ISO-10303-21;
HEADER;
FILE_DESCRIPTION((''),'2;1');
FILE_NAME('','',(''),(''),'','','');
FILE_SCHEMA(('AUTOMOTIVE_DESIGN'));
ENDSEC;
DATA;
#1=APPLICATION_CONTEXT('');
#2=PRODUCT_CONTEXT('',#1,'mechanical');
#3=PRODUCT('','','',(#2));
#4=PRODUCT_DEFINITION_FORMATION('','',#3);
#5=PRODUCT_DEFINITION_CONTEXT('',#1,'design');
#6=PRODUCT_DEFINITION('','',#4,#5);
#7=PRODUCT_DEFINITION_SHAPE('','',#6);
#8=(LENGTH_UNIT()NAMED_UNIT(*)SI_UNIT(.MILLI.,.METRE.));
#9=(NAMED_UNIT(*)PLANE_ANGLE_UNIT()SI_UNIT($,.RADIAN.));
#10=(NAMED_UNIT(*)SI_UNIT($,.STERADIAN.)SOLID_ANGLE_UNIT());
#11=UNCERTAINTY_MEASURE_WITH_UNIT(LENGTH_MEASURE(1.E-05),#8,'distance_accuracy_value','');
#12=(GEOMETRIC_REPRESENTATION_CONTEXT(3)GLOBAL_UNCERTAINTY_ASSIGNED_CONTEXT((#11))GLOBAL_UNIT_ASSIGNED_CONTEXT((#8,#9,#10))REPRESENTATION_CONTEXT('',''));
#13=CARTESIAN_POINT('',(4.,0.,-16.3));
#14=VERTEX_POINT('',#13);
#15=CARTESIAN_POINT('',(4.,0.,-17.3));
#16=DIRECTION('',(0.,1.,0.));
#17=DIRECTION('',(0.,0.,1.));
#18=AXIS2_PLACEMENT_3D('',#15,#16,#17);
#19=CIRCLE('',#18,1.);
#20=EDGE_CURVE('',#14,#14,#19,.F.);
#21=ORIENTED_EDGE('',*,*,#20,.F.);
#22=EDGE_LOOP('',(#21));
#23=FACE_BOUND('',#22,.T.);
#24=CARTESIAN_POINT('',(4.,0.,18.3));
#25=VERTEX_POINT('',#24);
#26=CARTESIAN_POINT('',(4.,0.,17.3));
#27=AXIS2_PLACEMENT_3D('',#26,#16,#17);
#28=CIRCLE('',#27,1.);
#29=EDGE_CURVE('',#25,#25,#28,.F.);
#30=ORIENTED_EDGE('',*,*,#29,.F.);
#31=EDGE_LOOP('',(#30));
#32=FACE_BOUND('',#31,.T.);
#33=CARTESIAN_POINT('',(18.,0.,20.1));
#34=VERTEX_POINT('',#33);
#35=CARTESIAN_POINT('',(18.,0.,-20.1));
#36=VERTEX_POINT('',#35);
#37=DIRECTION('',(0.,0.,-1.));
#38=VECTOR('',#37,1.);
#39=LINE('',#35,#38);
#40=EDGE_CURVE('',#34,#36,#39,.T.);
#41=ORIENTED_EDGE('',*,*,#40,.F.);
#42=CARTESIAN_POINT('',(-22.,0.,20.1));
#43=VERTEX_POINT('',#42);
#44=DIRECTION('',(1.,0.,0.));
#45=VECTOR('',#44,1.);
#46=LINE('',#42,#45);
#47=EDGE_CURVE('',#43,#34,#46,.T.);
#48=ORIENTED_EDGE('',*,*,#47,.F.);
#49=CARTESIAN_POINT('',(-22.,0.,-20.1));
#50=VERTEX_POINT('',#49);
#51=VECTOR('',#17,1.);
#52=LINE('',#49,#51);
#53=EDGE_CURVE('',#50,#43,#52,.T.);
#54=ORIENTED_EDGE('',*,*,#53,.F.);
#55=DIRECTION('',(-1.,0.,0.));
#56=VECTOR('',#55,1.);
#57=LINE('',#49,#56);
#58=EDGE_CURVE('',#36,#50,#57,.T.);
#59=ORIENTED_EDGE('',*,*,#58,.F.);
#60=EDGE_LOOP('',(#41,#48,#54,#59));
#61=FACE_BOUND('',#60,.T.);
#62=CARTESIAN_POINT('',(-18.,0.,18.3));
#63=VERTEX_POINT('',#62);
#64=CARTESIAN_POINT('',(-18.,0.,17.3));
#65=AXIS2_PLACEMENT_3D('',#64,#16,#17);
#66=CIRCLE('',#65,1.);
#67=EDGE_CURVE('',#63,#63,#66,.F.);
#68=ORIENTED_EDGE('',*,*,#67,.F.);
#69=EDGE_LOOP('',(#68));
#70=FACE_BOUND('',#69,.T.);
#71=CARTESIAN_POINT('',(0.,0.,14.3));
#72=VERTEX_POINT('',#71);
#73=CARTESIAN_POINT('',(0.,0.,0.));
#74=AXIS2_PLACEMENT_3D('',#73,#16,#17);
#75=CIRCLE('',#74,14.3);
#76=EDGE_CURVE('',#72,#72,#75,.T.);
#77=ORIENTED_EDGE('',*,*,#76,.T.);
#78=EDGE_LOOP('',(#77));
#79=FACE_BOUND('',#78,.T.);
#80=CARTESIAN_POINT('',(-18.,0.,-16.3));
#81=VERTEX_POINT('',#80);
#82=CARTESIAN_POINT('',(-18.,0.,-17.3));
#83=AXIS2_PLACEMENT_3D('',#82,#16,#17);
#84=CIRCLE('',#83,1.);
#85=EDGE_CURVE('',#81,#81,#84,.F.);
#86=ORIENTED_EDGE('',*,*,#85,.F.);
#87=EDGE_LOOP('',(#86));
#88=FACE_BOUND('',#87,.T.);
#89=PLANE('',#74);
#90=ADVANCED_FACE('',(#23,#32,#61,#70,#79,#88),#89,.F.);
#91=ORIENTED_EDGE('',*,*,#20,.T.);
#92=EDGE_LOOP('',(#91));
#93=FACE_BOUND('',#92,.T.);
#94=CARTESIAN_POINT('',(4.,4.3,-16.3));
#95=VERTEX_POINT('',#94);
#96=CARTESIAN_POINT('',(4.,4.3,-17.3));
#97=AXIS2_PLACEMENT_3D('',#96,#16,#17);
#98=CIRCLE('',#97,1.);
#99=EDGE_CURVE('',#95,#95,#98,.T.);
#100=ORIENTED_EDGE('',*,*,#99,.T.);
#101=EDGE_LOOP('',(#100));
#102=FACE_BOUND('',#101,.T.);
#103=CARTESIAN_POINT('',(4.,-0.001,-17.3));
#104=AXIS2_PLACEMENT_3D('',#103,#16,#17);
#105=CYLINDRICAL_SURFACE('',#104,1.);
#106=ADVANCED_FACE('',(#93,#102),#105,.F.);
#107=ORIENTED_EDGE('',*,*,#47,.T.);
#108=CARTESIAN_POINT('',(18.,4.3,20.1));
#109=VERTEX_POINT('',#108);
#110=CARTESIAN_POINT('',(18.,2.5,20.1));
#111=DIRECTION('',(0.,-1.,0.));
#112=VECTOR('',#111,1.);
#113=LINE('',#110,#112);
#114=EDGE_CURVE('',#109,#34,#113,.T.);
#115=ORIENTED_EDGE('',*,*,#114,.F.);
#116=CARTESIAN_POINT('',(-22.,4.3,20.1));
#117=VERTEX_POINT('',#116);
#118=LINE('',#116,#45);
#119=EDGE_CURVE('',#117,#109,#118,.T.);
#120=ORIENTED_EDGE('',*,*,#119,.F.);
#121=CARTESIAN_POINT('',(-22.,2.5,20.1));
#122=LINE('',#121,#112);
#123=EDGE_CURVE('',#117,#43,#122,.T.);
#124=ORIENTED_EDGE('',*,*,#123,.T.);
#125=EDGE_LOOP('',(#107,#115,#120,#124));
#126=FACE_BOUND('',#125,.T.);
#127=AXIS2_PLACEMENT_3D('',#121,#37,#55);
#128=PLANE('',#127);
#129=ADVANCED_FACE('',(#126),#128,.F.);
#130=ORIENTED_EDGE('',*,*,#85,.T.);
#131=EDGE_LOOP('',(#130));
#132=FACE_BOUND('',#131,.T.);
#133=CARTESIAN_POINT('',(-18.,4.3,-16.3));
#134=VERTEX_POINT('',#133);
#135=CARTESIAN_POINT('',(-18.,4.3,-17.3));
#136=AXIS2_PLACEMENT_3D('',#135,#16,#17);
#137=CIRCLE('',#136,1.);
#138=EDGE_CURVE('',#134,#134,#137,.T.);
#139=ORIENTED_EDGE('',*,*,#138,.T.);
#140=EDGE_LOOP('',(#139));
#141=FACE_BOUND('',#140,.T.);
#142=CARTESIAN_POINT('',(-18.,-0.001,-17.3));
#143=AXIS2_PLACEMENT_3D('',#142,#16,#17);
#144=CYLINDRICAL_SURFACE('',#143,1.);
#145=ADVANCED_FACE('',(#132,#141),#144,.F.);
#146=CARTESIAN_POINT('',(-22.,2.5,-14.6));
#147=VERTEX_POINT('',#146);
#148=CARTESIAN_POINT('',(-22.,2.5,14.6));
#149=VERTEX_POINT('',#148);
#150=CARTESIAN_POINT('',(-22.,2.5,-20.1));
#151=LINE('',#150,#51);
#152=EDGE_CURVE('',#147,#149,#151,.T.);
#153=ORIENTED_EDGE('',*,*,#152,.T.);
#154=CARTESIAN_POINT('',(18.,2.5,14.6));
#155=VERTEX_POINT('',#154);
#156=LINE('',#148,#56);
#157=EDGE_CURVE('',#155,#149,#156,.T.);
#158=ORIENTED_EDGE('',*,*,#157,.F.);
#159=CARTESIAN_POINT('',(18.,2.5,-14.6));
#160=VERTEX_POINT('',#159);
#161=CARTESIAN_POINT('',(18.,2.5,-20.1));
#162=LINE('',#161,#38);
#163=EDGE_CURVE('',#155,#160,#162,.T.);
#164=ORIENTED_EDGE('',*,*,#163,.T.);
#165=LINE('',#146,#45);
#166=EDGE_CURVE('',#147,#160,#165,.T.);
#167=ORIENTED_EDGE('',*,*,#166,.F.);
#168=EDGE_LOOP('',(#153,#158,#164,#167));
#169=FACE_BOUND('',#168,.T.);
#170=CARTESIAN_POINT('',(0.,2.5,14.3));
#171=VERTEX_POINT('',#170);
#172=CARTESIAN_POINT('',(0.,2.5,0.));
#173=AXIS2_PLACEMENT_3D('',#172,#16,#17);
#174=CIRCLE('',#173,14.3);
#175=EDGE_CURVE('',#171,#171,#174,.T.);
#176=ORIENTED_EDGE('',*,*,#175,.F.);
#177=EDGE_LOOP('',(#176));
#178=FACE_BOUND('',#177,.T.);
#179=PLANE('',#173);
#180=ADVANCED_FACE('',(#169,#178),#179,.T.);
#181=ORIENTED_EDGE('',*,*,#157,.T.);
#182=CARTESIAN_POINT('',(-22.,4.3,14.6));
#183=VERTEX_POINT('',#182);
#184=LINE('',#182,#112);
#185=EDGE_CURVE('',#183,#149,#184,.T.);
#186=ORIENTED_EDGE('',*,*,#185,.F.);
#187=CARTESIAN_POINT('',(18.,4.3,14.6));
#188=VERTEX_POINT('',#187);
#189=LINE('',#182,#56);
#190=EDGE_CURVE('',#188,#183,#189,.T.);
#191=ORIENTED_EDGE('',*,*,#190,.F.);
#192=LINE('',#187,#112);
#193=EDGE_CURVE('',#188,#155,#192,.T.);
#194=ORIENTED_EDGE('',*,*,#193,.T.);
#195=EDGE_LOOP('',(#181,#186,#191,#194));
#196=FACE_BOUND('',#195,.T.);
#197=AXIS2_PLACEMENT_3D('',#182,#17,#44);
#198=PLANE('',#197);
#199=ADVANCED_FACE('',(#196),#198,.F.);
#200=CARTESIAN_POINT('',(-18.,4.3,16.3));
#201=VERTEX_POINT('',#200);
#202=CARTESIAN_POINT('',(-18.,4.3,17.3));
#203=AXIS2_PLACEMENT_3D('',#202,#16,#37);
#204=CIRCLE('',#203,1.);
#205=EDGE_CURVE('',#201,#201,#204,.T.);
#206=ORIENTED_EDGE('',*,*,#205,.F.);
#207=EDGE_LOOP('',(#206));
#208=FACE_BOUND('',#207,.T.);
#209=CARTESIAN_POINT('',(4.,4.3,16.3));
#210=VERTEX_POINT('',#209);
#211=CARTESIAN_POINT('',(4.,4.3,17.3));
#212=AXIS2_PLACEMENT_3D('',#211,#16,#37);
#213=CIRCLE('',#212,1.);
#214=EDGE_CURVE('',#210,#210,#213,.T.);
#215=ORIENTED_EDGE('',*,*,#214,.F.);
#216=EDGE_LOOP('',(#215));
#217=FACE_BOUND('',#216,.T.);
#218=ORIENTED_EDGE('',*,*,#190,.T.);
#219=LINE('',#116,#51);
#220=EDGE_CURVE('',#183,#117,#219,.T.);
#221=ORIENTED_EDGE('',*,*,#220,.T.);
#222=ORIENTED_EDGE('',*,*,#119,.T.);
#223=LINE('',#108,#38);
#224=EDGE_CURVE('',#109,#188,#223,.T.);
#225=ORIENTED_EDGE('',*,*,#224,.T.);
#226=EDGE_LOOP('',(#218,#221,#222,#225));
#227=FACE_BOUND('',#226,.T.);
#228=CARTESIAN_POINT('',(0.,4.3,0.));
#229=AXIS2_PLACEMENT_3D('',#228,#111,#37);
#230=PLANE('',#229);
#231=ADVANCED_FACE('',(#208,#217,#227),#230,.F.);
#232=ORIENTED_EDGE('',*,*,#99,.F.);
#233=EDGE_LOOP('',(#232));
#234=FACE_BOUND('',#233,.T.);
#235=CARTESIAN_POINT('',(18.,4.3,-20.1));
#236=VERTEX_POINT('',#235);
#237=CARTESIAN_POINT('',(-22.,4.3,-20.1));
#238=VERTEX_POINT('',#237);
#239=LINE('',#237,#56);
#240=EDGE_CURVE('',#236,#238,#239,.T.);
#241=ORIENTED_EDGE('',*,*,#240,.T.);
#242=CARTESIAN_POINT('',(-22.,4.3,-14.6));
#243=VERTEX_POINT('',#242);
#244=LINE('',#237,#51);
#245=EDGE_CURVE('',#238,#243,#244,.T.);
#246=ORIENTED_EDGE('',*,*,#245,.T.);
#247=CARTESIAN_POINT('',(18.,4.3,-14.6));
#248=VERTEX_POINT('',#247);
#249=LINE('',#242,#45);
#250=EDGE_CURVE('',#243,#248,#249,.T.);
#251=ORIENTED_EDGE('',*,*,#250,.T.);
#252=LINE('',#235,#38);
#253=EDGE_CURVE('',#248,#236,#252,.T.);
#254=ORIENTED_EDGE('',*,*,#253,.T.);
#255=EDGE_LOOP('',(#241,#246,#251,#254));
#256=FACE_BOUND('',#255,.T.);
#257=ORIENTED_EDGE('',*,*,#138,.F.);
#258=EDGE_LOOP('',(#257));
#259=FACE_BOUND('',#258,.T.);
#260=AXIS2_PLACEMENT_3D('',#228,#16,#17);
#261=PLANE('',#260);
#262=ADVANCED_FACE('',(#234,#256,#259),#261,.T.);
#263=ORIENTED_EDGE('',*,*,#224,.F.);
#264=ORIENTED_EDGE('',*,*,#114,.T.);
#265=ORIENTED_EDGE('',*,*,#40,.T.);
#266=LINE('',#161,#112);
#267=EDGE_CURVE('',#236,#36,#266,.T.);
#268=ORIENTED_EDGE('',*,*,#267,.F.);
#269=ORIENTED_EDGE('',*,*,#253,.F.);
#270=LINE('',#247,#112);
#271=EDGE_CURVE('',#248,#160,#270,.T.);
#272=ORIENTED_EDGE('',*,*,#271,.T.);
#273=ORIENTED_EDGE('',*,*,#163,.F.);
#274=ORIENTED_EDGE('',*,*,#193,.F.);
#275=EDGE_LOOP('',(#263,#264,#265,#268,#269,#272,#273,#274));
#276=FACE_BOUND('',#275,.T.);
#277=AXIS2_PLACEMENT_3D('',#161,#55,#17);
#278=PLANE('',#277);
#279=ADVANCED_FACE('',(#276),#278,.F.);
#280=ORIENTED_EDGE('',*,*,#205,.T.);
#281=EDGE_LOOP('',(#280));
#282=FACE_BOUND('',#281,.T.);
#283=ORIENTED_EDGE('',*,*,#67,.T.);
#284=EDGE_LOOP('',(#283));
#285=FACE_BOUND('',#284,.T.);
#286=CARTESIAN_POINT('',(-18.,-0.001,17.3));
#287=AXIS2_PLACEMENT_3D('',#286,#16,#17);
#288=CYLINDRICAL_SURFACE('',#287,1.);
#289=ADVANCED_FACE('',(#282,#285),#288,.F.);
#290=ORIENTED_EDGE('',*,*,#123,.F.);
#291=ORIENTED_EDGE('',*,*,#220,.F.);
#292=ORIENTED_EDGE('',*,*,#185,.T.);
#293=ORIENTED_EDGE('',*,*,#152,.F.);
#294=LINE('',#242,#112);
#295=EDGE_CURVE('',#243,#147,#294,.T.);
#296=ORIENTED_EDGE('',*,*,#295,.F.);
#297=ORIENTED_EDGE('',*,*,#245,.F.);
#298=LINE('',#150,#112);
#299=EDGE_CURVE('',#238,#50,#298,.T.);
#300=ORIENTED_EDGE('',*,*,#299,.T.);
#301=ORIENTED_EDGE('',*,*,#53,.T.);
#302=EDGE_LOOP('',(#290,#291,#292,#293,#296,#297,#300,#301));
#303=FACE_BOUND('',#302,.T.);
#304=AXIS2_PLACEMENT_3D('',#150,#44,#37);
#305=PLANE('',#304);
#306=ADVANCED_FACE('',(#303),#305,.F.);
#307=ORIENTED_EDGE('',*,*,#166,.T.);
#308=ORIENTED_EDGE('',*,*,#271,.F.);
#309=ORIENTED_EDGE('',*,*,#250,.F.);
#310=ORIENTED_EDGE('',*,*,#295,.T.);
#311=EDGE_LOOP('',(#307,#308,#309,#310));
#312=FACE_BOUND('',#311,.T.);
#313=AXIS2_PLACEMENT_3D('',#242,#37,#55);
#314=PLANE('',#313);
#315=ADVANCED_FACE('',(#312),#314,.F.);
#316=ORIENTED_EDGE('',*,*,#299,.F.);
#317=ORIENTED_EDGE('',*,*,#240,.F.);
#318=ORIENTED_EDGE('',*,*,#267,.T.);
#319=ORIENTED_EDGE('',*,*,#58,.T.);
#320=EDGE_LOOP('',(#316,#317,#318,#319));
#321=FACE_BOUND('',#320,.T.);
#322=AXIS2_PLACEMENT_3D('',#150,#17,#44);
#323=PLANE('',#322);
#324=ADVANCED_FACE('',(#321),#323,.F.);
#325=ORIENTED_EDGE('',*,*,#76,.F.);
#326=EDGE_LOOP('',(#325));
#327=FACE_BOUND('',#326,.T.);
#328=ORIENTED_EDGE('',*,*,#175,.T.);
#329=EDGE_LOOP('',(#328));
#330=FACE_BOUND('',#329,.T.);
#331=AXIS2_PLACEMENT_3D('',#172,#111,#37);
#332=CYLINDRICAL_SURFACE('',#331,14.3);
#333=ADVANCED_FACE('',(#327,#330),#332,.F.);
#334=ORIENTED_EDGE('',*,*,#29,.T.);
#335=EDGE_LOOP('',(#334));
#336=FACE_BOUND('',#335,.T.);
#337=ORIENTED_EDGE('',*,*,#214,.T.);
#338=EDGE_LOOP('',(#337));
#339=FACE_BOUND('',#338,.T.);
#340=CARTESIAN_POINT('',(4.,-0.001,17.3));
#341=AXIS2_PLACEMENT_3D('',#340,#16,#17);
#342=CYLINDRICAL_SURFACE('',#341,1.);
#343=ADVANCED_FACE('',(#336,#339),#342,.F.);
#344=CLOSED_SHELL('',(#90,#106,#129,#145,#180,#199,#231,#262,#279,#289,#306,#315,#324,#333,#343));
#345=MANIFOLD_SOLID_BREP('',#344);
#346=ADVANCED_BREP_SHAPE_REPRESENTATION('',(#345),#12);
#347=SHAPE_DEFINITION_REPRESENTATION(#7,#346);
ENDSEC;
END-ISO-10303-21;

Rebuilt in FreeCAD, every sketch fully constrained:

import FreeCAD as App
import Part
import Sketcher

V = App.Vector


def add_polygon(sketch, points):
    """Adds a closed chain of lines whose ends are joined by coincident constraints."""
    first, n = sketch.GeometryCount, len(points)
    for a, b in zip(points, points[1:] + points[:1]):
        sketch.addGeometry(Part.LineSegment(App.Vector(*a, 0), App.Vector(*b, 0)), False)
    for i in range(n):
        sketch.addConstraint(Sketcher.Constraint("Coincident", first + i, 2, first + (i + 1) % n, 1))

doc = App.newDocument("Part")
body = doc.addObject("PartDesign::Body", "Body")

# Sketch on XZ plane
sketch1 = body.newObject("Sketcher::SketchObject", "Sketch")
sketch1.AttachmentSupport = (doc.getObject("XZ_Plane"), [""])
sketch1.MapMode = "FlatFace"
add_polygon(sketch1, [(-22, -20), (-22, 20), (18, 20), (18, -20)])  # lines 0-3
sketch1.addGeometry(Part.Circle(V(0, 0, 0), V(0, 0, 1), 14), False)  # 4
sketch1.addConstraint([
    Sketcher.Constraint("Vertical", 0),
    Sketcher.Constraint("Horizontal", 1),
    Sketcher.Constraint("Vertical", 2),
    Sketcher.Constraint("Horizontal", 3),
    Sketcher.Constraint("Coincident", 4, 3, -1, 1),
    Sketcher.Constraint("Diameter", 4, 28.6),
    Sketcher.Constraint("DistanceX", 1, 1, 1, 2, 40.0),
    Sketcher.Constraint("DistanceY", 0, 1, 0, 2, 40.2),
    Sketcher.Constraint("DistanceX", 0, 2, -1, 1, 22.0),
    Sketcher.Constraint("DistanceY", -1, 1, 0, 2, 20.1),
])
pad1 = body.newObject("PartDesign::Pad", "Pad")
pad1.Profile = sketch1
pad1.Length = 2.5
pad1.Reversed = True

# Sketch on XZ plane
sketch2 = body.newObject("Sketcher::SketchObject", "Sketch001")
sketch2.AttachmentSupport = (doc.getObject("XZ_Plane"), [""])
sketch2.MapMode = "FlatFace"
sketch2.AttachmentOffset = App.Placement(V(0, 0, -2.5), App.Rotation())
add_polygon(sketch2, [(-22, -20), (-22, -15), (18, -15), (18, -20)])  # lines 0-3
add_polygon(sketch2, [(-22, 15), (-22, 20), (18, 20), (18, 15)])  # lines 4-7
sketch2.addConstraint([
    Sketcher.Constraint("Vertical", 0),
    Sketcher.Constraint("Horizontal", 1),
    Sketcher.Constraint("Vertical", 2),
    Sketcher.Constraint("Horizontal", 3),
    Sketcher.Constraint("Vertical", 4),
    Sketcher.Constraint("Horizontal", 5),
    Sketcher.Constraint("Vertical", 6),
    Sketcher.Constraint("Horizontal", 7),
    Sketcher.Constraint("Symmetric", 3, 2, 4, 2, -1),
    Sketcher.Constraint("Symmetric", 1, 2, 6, 2, -1),
    Sketcher.Constraint("DistanceX", 1, 1, 1, 2, 40.0),
    Sketcher.Constraint("DistanceY", 0, 1, 0, 2, 5.5),
    Sketcher.Constraint("DistanceX", 0, 2, -1, 1, 22.0),
    Sketcher.Constraint("DistanceY", 0, 2, -1, 1, 14.6),
])
pad2 = body.newObject("PartDesign::Pad", "Pad001")
pad2.Profile = sketch2
pad2.Length = 1.8
pad2.Reversed = True

# Sketch on XZ plane
sketch3 = body.newObject("Sketcher::SketchObject", "Sketch002")
sketch3.AttachmentSupport = (doc.getObject("XZ_Plane"), [""])
sketch3.MapMode = "FlatFace"
sketch3.AttachmentOffset = App.Placement(V(0, 0, -4.3), App.Rotation())
sketch3.addGeometry(Part.Circle(V(4, -17.3, 0), V(0, 0, 1), 1), False)
sketch3.addConstraint([
    Sketcher.Constraint("Diameter", 0, 2.0),
    Sketcher.Constraint("DistanceX", -1, 1, 0, 3, 4.0),
    Sketcher.Constraint("DistanceY", 0, 3, -1, 1, 17.3),
])
pocket1 = body.newObject("PartDesign::Pocket", "Pocket")
pocket1.Profile = sketch3
pocket1.Type = "UpToFirst"
pocket1.Reversed = True

# Sketch on XZ plane
sketch4 = body.newObject("Sketcher::SketchObject", "Sketch003")
sketch4.AttachmentSupport = (doc.getObject("XZ_Plane"), [""])
sketch4.MapMode = "FlatFace"
sketch4.AttachmentOffset = App.Placement(V(0, 0, -4.3), App.Rotation())
sketch4.addGeometry(Part.Circle(V(-18, -17.3, 0), V(0, 0, 1), 1), False)
sketch4.addConstraint([
    Sketcher.Constraint("Diameter", 0, 2.0),
    Sketcher.Constraint("DistanceX", 0, 3, -1, 1, 18.0),
    Sketcher.Constraint("DistanceY", 0, 3, -1, 1, 17.3),
])
pocket2 = body.newObject("PartDesign::Pocket", "Pocket001")
pocket2.Profile = sketch4
pocket2.Type = "UpToFirst"
pocket2.Reversed = True

# Sketch on XZ plane
sketch5 = body.newObject("Sketcher::SketchObject", "Sketch004")
sketch5.AttachmentSupport = (doc.getObject("XZ_Plane"), [""])
sketch5.MapMode = "FlatFace"
sketch5.AttachmentOffset = App.Placement(V(0, 0, -4.3), App.Rotation())
sketch5.addGeometry(Part.Circle(V(-18, 17.3, 0), V(0, 0, 1), 1), False)
sketch5.addConstraint([
    Sketcher.Constraint("Diameter", 0, 2.0),
    Sketcher.Constraint("DistanceX", 0, 3, -1, 1, 18.0),
    Sketcher.Constraint("DistanceY", -1, 1, 0, 3, 17.3),
])
pocket3 = body.newObject("PartDesign::Pocket", "Pocket002")
pocket3.Profile = sketch5
pocket3.Type = "UpToFirst"
pocket3.Reversed = True

# Sketch on XZ plane
sketch6 = body.newObject("Sketcher::SketchObject", "Sketch005")
sketch6.AttachmentSupport = (doc.getObject("XZ_Plane"), [""])
sketch6.MapMode = "FlatFace"
sketch6.AttachmentOffset = App.Placement(V(0, 0, -4.3), App.Rotation())
sketch6.addGeometry(Part.Circle(V(4, 17.3, 0), V(0, 0, 1), 1), False)
sketch6.addConstraint([
    Sketcher.Constraint("Diameter", 0, 2.0),
    Sketcher.Constraint("DistanceX", -1, 1, 0, 3, 4.0),
    Sketcher.Constraint("DistanceY", -1, 1, 0, 3, 17.3),
])
pocket4 = body.newObject("PartDesign::Pocket", "Pocket003")
pocket4.Profile = sketch6
pocket4.Type = "UpToFirst"
pocket4.Reversed = True

doc.recompute()
